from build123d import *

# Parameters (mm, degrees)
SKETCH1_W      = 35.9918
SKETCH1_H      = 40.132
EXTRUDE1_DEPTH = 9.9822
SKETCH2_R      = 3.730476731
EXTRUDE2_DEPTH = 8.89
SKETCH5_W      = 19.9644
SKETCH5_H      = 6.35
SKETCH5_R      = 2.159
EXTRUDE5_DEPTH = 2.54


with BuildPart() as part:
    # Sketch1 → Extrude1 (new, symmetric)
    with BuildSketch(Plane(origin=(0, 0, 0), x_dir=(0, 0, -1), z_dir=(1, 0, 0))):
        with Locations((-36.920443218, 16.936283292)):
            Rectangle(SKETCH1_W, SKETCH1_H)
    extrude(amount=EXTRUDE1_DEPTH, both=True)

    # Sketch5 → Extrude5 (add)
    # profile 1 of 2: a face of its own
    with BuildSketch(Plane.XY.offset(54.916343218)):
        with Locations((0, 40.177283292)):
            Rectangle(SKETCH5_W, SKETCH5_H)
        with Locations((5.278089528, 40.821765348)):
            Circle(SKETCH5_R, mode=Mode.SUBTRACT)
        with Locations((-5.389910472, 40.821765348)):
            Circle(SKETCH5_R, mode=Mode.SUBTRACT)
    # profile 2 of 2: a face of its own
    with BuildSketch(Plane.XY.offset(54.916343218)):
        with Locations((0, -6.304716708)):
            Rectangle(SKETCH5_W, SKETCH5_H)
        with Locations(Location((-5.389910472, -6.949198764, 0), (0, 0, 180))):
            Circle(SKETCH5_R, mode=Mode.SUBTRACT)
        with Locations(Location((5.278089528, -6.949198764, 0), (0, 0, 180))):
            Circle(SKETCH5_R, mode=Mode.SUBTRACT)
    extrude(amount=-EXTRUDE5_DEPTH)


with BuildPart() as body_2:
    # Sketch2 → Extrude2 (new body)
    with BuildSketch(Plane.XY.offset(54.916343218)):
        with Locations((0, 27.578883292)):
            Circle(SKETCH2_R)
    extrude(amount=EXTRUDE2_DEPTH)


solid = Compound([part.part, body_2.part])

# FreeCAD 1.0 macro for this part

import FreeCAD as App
import Part
import Sketcher
Q = App.Units.Quantity


def add_polygon(sketch, points):
    """Adds a closed chain of lines whose ends are joined by coincident constraints."""
    first, n = sketch.GeometryCount, len(points)
    for a, b in zip(points, points[1:] + points[:1]):
        sketch.addGeometry(Part.LineSegment(App.Vector(*a, 0), App.Vector(*b, 0)), False)
    for i in range(n):
        sketch.addConstraint(Sketcher.Constraint("Coincident", first + i, 2, first + (i + 1) % n, 1))

doc = App.newDocument("Part")
params = doc.addObject("Spreadsheet::Sheet", "Params")
for row, (alias, value) in enumerate([
    ("sketch1_width", "1.58 in"),
    ("sketch1_height", "1.417 in"),
    ("pad1_length", "0.786 in"),
    ("sketch2_diameter", "0.17 in"),
    ("sketch2_height", "0.25 in"),
    ("sketch2_width", "0.786 in"),
    ("pad2_length", "0.1 in"),
    ("pad3_length", "0.35 in"),
], start=1):
    params.set(f"A{row}", alias)
    params.set(f"B{row}", "=" + value)
    params.setAlias(f"B{row}", alias)

body = doc.addObject("PartDesign::Body", "Body")

# Sketch on YZ plane
sketch1 = body.newObject("Sketcher::SketchObject", "Sketch")
sketch1.AttachmentSupport = (doc.getObject("YZ_Plane"), [""])
sketch1.MapMode = "FlatFace"
add_polygon(sketch1, [(37, 55), (-3, 55), (-3, 19), (37, 19)])  # lines 0-3
sketch1.addConstraint([
    Sketcher.Constraint("Horizontal", 0),
    Sketcher.Constraint("Vertical", 1),
    Sketcher.Constraint("Horizontal", 2),
    Sketcher.Constraint("Vertical", 3),
    Sketcher.Constraint("DistanceX", 0, 2, 0, 1, Q("1.58 in")),
    Sketcher.Constraint("DistanceY", 1, 2, 1, 1, Q("1.417 in")),
    Sketcher.Constraint("DistanceX", 0, 2, -1, 1, Q("3.129717 mm")),
    Sketcher.Constraint("DistanceY", -1, 1, 0, 2, Q("54.916343 mm")),
])
sketch1.setExpression("Constraints[8]", "Params.sketch1_width")
sketch1.setExpression("Constraints[9]", "Params.sketch1_height")
pad1 = body.newObject("PartDesign::Pad", "Pad")
pad1.Profile = sketch1
pad1.setExpression("Length", "Params.pad1_length")
pad1.Midplane = True

# Sketch on XY plane
sketch2 = body.newObject("Sketcher::SketchObject", "Sketch001")
sketch2.AttachmentSupport = (doc.getObject("XY_Plane"), [""])
sketch2.MapMode = "FlatFace"
sketch2.AttachmentOffset = App.Placement(App.Vector(0, 0, 54.916343), App.Rotation())
add_polygon(sketch2, [(-10, 43.4), (-10, 37), (10, 37), (10, 43.4)])  # lines 0-3
sketch2.addGeometry(Part.Circle(App.Vector(-5.4, 40.8, 0), App.Vector(0, 0, 1), 2.2), False)  # 4
sketch2.addGeometry(Part.Circle(App.Vector(5.3, 40.8, 0), App.Vector(0, 0, 1), 2.2), False)  # 5
add_polygon(sketch2, [(-10, -3.1), (-10, -9.5), (10, -9.5), (10, -3.1)])  # lines 6-9
sketch2.addGeometry(Part.Circle(App.Vector(-5.4, -6.9, 0), App.Vector(0, 0, 1), 2.2), False)  # 10
sketch2.addGeometry(Part.Circle(App.Vector(5.3, -6.9, 0), App.Vector(0, 0, 1), 2.2), False)  # 11
sketch2.addConstraint([
    Sketcher.Constraint("Vertical", 0),
    Sketcher.Constraint("Horizontal", 1),
    Sketcher.Constraint("Vertical", 2),
    Sketcher.Constraint("Horizontal", 3),
    Sketcher.Constraint("Vertical", 6),
    Sketcher.Constraint("Horizontal", 7),
    Sketcher.Constraint("Vertical", 8),
    Sketcher.Constraint("Horizontal", 9),
    Sketcher.Constraint("Equal", 4, 5),
    Sketcher.Constraint("Equal", 5, 10),
    Sketcher.Constraint("Equal", 10, 11),
    Sketcher.Constraint("Horizontal", 4, 3, 5, 3),
    Sketcher.Constraint("Horizontal", 10, 3, 11, 3),
    Sketcher.Constraint("Vertical", 4, 3, 10, 3),
    Sketcher.Constraint("Vertical", 5, 3, 11, 3),
    Sketcher.Constraint("Vertical", 3, 2, 6, 2),
    Sketcher.Constraint("Vertical", 2, 2, 7, 2),
    Sketcher.Constraint("Equal", 2, 6),
    Sketcher.Constraint("Diameter", 4, Q("0.17 in")),
    Sketcher.Constraint("DistanceY", 0, 2, 0, 1, Q("0.25 in")),
    Sketcher.Constraint("DistanceX", 1, 1, 1, 2, Q("0.786 in")),
    Sketcher.Constraint("DistanceX", 4, 3, 5, 3, Q("0.42 in")),
    Sketcher.Constraint("DistanceY", 6, 2, 0, 2, Q("1.83 in")),
    Sketcher.Constraint("DistanceX", 0, 2, -1, 1, Q("0.393 in")),
    Sketcher.Constraint("DistanceY", 10, 3, -1, 1, Q("6.949199 mm")),
    Sketcher.Constraint("DistanceX", 4, 3, -1, 1, Q("5.38991 mm")),
    Sketcher.Constraint("DistanceY", -1, 1, 4, 3, Q("40.821765 mm")),
    Sketcher.Constraint("DistanceY", -1, 1, 0, 2, Q("37.002283 mm")),
])
sketch2.setExpression("Constraints[26]", "Params.sketch2_diameter")
sketch2.setExpression("Constraints[27]", "Params.sketch2_height")
sketch2.setExpression("Constraints[28]", "Params.sketch2_width")
pad2 = body.newObject("PartDesign::Pad", "Pad001")
pad2.Profile = sketch2
pad2.setExpression("Length", "Params.pad2_length")
pad2.Reversed = True
body2 = doc.addObject("PartDesign::Body", "Body001")

# Sketch on XY plane
sketch3 = body2.newObject("Sketcher::SketchObject", "Sketch002")
sketch3.AttachmentSupport = (doc.getObject("XY_Plane001"), [""])
sketch3.MapMode = "FlatFace"
sketch3.AttachmentOffset = App.Placement(App.Vector(0, 0, 54.916343), App.Rotation())
sketch3.addGeometry(Part.Circle(App.Vector(0, 27.6, 0), App.Vector(0, 0, 1), 3.7), False)
sketch3.addConstraint([
    Sketcher.Constraint("PointOnObject", 0, 3, -2),
    Sketcher.Constraint("Diameter", 0, Q("7.460953 mm")),
    Sketcher.Constraint("DistanceY", -1, 1, 0, 3, Q("27.578883 mm")),
])
pad3 = body2.newObject("PartDesign::Pad", "Pad002")
pad3.Profile = sketch3
pad3.setExpression("Length", "Params.pad3_length")

doc.recompute()
